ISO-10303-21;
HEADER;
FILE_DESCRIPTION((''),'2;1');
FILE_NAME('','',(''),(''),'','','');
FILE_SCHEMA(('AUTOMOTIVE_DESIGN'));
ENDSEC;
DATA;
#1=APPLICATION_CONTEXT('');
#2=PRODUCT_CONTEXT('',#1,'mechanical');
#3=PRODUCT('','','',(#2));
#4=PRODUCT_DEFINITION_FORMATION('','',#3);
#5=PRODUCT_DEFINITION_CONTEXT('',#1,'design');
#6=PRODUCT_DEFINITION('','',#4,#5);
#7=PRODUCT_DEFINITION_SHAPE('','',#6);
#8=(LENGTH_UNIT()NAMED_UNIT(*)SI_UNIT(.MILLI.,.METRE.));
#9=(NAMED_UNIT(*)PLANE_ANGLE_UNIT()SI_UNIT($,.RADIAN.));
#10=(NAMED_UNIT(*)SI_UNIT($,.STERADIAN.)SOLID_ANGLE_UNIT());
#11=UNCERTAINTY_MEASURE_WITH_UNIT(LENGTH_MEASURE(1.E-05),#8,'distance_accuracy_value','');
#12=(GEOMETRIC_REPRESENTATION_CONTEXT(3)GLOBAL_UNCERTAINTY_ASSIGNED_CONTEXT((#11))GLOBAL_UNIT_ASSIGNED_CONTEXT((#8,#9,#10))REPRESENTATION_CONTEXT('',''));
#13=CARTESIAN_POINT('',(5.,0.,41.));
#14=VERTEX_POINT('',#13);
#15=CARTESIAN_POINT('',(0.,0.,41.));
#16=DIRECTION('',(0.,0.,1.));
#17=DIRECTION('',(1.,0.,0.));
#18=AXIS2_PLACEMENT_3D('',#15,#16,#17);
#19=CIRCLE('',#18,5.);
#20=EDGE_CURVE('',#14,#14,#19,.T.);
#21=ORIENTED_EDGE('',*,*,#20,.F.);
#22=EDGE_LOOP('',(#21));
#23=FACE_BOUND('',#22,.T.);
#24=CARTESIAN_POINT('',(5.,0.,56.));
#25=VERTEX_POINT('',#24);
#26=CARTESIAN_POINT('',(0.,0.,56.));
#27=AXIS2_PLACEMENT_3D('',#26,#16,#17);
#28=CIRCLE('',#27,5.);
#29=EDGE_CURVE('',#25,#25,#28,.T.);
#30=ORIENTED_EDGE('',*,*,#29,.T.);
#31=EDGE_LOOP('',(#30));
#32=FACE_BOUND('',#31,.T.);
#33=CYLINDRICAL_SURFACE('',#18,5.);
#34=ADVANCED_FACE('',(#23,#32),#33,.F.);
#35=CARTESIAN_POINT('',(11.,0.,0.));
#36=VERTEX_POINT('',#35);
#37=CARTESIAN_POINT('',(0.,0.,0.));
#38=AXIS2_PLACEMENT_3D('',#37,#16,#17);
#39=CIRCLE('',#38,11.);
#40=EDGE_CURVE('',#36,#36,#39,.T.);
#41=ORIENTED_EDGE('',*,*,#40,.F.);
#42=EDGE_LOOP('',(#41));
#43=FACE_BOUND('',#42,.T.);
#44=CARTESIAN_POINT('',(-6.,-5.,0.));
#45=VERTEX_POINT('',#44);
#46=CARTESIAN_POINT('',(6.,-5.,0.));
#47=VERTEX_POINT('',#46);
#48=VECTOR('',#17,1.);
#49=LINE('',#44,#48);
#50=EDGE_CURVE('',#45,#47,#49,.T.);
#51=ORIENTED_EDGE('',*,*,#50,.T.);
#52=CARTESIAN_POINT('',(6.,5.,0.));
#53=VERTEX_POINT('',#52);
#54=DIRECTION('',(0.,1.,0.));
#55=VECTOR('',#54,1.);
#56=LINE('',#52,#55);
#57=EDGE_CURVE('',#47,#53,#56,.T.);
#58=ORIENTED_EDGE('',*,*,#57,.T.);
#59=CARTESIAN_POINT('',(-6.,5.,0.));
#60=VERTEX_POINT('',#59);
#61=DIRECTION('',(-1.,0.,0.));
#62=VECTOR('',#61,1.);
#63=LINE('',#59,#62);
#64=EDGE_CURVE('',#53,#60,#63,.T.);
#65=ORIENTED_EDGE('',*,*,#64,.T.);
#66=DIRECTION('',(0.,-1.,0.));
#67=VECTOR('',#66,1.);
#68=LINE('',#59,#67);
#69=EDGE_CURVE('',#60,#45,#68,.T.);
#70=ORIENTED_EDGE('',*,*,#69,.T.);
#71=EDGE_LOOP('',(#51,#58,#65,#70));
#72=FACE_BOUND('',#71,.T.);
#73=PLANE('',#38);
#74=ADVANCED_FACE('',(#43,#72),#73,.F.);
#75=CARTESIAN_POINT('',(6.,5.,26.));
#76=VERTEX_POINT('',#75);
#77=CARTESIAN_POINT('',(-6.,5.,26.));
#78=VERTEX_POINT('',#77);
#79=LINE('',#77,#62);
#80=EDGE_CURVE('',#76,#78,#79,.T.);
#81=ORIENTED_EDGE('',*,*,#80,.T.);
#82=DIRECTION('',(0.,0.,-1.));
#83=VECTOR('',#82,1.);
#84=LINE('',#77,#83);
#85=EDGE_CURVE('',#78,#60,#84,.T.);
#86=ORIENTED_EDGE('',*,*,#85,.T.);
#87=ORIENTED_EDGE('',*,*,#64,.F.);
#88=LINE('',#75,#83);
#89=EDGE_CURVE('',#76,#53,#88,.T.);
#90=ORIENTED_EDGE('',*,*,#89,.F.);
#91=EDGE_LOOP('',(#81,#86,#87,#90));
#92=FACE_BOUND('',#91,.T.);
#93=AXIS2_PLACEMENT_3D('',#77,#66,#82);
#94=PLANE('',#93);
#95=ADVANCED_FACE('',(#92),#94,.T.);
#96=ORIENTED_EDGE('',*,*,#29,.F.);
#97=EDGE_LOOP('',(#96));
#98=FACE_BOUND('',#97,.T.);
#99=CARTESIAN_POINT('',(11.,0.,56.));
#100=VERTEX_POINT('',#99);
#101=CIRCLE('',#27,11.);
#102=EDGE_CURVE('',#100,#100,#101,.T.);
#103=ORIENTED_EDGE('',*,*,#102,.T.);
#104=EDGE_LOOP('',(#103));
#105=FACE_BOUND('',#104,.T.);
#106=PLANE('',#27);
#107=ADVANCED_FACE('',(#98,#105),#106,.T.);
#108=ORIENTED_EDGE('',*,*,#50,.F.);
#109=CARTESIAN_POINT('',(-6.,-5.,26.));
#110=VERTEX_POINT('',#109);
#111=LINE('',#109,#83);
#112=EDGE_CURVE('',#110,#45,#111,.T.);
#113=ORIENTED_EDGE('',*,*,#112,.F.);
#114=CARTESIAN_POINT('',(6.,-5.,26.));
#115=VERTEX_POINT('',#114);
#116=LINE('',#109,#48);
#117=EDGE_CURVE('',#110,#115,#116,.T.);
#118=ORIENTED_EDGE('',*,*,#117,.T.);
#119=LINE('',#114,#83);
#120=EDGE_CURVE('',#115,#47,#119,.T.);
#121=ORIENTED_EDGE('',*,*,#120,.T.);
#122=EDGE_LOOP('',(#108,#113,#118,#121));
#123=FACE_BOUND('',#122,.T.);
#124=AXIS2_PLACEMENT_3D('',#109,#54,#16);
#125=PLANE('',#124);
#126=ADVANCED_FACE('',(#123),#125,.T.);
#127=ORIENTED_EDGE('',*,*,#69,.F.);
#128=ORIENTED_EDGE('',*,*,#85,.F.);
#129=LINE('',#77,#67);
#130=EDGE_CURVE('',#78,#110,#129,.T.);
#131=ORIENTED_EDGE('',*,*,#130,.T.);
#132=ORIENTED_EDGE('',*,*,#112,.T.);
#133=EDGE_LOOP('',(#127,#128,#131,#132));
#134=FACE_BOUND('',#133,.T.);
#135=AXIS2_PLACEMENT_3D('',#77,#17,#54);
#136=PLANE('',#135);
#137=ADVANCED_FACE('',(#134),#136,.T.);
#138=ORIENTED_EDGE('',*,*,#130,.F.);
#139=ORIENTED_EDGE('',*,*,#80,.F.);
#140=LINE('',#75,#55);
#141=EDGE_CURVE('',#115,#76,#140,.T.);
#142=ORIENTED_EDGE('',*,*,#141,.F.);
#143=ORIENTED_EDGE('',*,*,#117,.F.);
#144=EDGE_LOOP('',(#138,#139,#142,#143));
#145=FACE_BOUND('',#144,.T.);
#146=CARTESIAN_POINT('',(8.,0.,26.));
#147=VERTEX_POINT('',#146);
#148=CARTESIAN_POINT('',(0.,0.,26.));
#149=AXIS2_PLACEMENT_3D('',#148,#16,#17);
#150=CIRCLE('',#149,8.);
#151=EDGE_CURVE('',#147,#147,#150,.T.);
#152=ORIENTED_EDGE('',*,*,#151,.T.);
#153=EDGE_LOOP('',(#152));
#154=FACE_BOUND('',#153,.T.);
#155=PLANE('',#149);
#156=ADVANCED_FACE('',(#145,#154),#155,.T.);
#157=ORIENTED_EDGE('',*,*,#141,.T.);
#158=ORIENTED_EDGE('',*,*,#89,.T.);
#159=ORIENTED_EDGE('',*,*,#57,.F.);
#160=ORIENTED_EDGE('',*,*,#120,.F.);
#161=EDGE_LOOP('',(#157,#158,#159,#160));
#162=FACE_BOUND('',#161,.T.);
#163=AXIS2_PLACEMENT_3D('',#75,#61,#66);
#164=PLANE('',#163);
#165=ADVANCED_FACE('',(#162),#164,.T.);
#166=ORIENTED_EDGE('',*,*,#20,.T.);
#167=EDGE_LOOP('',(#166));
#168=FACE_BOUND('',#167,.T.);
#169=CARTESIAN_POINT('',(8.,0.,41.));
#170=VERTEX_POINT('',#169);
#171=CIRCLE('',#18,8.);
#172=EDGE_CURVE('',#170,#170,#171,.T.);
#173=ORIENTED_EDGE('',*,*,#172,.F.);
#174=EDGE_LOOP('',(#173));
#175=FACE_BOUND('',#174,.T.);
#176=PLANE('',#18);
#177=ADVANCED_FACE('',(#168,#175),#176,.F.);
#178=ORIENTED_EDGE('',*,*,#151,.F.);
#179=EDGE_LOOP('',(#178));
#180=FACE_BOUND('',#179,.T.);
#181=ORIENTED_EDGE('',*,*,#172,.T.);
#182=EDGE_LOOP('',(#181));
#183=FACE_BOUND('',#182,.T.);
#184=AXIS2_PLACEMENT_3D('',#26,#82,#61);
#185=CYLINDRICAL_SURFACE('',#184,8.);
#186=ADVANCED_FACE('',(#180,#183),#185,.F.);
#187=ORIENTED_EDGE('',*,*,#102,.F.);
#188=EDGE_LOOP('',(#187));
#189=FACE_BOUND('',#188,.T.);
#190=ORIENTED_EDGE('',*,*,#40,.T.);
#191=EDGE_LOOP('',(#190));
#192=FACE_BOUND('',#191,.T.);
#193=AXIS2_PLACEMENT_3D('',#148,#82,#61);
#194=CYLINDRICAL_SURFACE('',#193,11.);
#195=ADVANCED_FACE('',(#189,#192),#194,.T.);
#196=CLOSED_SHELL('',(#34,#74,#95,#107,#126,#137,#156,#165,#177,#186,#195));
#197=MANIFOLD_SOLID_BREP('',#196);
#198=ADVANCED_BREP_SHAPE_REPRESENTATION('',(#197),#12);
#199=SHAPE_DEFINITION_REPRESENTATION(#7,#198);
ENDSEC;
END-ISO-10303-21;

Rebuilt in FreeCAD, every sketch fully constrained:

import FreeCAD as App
import Part
import Sketcher
from FreeCAD import Vector
Q = App.Units.Quantity


def add_polygon(sketch, points):
    """Adds a closed chain of lines whose ends are joined by coincident constraints."""
    first, n = sketch.GeometryCount, len(points)
    for a, b in zip(points, points[1:] + points[:1]):
        sketch.addGeometry(Part.LineSegment(App.Vector(*a, 0), App.Vector(*b, 0)), False)
    for i in range(n):
        sketch.addConstraint(Sketcher.Constraint("Coincident", first + i, 2, first + (i + 1) % n, 1))

doc = App.newDocument("Part")
body = doc.addObject("PartDesign::Body", "Body")

sketch1 = body.newObject("Sketcher::SketchObject", "Sketch")
sketch1.AttachmentSupport = (doc.getObject("XY_Plane"), [""])
sketch1.MapMode = "FlatFace"
sketch1.addGeometry(Part.Circle(Vector(0, 0, 0), Vector(0, 0, 1), 11), False)
add_polygon(sketch1, [(6, -5), (-6, -5), (-6, 5), (6, 5)])
sketch1.addConstraint(Sketcher.Constraint("Horizontal", 1))
sketch1.addConstraint(Sketcher.Constraint("Vertical", 2))
sketch1.addConstraint(Sketcher.Constraint("Horizontal", 3))
sketch1.addConstraint(Sketcher.Constraint("Vertical", 4))
sketch1.addConstraint(Sketcher.Constraint("Coincident", 0, 3, -1, 1))
sketch1.addConstraint(Sketcher.Constraint("Symmetric", 1, 2, 3, 2, -1, 1))
sketch1.addConstraint(Sketcher.Constraint("Diameter", 0, Q("22 mm")))
sketch1.addConstraint(Sketcher.Constraint("DistanceX", 1, 2, 1, 1, Q("12 mm")))
sketch1.addConstraint(Sketcher.Constraint("DistanceY", 2, 1, 2, 2, Q("10 mm")))
pad1 = body.newObject("PartDesign::Pad", "Pad")
pad1.Profile = sketch1
pad1.Length = 26

sketch2 = body.newObject("Sketcher::SketchObject", "Sketch001")
sketch2.AttachmentSupport = (doc.getObject("XY_Plane"), [""])
sketch2.MapMode = "FlatFace"
sketch2.AttachmentOffset = App.Placement(Vector(0, 0, 26), App.Rotation())
sketch2.addGeometry(Part.Circle(Vector(0, 0, 0), Vector(0, 0, 1), 11), False)
sketch2.addGeometry(Part.Circle(Vector(0, 0, 0), Vector(0, 0, 1), 8), False)
sketch2.addConstraint(Sketcher.Constraint("Coincident", 0, 3, -1, 1))
sketch2.addConstraint(Sketcher.Constraint("Coincident", 1, 3, -1, 1))
sketch2.addConstraint(Sketcher.Constraint("Diameter", 0, Q("22 mm")))
sketch2.addConstraint(Sketcher.Constraint("Diameter", 1, Q("16 mm")))
pad2 = body.newObject("PartDesign::Pad", "Pad001")
pad2.Profile = sketch2
pad2.Length = 30

sketch3 = body.newObject("Sketcher::SketchObject", "Sketch002")
sketch3.AttachmentSupport = (doc.getObject("XY_Plane"), [""])
sketch3.MapMode = "FlatFace"
sketch3.AttachmentOffset = App.Placement(Vector(0, 0, 56), App.Rotation())
sketch3.addGeometry(Part.Circle(Vector(0, 0, 0), Vector(0, 0, 1), 11), False)
sketch3.addGeometry(Part.Circle(Vector(0, 0, 0), Vector(0, 0, 1), 5), False)
sketch3.addConstraint(Sketcher.Constraint("Coincident", 0, 3, -1, 1))
sketch3.addConstraint(Sketcher.Constraint("Coincident", 1, 3, -1, 1))
sketch3.addConstraint(Sketcher.Constraint("Diameter", 0, Q("22 mm")))
sketch3.addConstraint(Sketcher.Constraint("Diameter", 1, Q("10 mm")))
pad3 = body.newObject("PartDesign::Pad", "Pad002")
pad3.Profile = sketch3
pad3.Length = 15
pad3.Reversed = True

doc.recompute()
